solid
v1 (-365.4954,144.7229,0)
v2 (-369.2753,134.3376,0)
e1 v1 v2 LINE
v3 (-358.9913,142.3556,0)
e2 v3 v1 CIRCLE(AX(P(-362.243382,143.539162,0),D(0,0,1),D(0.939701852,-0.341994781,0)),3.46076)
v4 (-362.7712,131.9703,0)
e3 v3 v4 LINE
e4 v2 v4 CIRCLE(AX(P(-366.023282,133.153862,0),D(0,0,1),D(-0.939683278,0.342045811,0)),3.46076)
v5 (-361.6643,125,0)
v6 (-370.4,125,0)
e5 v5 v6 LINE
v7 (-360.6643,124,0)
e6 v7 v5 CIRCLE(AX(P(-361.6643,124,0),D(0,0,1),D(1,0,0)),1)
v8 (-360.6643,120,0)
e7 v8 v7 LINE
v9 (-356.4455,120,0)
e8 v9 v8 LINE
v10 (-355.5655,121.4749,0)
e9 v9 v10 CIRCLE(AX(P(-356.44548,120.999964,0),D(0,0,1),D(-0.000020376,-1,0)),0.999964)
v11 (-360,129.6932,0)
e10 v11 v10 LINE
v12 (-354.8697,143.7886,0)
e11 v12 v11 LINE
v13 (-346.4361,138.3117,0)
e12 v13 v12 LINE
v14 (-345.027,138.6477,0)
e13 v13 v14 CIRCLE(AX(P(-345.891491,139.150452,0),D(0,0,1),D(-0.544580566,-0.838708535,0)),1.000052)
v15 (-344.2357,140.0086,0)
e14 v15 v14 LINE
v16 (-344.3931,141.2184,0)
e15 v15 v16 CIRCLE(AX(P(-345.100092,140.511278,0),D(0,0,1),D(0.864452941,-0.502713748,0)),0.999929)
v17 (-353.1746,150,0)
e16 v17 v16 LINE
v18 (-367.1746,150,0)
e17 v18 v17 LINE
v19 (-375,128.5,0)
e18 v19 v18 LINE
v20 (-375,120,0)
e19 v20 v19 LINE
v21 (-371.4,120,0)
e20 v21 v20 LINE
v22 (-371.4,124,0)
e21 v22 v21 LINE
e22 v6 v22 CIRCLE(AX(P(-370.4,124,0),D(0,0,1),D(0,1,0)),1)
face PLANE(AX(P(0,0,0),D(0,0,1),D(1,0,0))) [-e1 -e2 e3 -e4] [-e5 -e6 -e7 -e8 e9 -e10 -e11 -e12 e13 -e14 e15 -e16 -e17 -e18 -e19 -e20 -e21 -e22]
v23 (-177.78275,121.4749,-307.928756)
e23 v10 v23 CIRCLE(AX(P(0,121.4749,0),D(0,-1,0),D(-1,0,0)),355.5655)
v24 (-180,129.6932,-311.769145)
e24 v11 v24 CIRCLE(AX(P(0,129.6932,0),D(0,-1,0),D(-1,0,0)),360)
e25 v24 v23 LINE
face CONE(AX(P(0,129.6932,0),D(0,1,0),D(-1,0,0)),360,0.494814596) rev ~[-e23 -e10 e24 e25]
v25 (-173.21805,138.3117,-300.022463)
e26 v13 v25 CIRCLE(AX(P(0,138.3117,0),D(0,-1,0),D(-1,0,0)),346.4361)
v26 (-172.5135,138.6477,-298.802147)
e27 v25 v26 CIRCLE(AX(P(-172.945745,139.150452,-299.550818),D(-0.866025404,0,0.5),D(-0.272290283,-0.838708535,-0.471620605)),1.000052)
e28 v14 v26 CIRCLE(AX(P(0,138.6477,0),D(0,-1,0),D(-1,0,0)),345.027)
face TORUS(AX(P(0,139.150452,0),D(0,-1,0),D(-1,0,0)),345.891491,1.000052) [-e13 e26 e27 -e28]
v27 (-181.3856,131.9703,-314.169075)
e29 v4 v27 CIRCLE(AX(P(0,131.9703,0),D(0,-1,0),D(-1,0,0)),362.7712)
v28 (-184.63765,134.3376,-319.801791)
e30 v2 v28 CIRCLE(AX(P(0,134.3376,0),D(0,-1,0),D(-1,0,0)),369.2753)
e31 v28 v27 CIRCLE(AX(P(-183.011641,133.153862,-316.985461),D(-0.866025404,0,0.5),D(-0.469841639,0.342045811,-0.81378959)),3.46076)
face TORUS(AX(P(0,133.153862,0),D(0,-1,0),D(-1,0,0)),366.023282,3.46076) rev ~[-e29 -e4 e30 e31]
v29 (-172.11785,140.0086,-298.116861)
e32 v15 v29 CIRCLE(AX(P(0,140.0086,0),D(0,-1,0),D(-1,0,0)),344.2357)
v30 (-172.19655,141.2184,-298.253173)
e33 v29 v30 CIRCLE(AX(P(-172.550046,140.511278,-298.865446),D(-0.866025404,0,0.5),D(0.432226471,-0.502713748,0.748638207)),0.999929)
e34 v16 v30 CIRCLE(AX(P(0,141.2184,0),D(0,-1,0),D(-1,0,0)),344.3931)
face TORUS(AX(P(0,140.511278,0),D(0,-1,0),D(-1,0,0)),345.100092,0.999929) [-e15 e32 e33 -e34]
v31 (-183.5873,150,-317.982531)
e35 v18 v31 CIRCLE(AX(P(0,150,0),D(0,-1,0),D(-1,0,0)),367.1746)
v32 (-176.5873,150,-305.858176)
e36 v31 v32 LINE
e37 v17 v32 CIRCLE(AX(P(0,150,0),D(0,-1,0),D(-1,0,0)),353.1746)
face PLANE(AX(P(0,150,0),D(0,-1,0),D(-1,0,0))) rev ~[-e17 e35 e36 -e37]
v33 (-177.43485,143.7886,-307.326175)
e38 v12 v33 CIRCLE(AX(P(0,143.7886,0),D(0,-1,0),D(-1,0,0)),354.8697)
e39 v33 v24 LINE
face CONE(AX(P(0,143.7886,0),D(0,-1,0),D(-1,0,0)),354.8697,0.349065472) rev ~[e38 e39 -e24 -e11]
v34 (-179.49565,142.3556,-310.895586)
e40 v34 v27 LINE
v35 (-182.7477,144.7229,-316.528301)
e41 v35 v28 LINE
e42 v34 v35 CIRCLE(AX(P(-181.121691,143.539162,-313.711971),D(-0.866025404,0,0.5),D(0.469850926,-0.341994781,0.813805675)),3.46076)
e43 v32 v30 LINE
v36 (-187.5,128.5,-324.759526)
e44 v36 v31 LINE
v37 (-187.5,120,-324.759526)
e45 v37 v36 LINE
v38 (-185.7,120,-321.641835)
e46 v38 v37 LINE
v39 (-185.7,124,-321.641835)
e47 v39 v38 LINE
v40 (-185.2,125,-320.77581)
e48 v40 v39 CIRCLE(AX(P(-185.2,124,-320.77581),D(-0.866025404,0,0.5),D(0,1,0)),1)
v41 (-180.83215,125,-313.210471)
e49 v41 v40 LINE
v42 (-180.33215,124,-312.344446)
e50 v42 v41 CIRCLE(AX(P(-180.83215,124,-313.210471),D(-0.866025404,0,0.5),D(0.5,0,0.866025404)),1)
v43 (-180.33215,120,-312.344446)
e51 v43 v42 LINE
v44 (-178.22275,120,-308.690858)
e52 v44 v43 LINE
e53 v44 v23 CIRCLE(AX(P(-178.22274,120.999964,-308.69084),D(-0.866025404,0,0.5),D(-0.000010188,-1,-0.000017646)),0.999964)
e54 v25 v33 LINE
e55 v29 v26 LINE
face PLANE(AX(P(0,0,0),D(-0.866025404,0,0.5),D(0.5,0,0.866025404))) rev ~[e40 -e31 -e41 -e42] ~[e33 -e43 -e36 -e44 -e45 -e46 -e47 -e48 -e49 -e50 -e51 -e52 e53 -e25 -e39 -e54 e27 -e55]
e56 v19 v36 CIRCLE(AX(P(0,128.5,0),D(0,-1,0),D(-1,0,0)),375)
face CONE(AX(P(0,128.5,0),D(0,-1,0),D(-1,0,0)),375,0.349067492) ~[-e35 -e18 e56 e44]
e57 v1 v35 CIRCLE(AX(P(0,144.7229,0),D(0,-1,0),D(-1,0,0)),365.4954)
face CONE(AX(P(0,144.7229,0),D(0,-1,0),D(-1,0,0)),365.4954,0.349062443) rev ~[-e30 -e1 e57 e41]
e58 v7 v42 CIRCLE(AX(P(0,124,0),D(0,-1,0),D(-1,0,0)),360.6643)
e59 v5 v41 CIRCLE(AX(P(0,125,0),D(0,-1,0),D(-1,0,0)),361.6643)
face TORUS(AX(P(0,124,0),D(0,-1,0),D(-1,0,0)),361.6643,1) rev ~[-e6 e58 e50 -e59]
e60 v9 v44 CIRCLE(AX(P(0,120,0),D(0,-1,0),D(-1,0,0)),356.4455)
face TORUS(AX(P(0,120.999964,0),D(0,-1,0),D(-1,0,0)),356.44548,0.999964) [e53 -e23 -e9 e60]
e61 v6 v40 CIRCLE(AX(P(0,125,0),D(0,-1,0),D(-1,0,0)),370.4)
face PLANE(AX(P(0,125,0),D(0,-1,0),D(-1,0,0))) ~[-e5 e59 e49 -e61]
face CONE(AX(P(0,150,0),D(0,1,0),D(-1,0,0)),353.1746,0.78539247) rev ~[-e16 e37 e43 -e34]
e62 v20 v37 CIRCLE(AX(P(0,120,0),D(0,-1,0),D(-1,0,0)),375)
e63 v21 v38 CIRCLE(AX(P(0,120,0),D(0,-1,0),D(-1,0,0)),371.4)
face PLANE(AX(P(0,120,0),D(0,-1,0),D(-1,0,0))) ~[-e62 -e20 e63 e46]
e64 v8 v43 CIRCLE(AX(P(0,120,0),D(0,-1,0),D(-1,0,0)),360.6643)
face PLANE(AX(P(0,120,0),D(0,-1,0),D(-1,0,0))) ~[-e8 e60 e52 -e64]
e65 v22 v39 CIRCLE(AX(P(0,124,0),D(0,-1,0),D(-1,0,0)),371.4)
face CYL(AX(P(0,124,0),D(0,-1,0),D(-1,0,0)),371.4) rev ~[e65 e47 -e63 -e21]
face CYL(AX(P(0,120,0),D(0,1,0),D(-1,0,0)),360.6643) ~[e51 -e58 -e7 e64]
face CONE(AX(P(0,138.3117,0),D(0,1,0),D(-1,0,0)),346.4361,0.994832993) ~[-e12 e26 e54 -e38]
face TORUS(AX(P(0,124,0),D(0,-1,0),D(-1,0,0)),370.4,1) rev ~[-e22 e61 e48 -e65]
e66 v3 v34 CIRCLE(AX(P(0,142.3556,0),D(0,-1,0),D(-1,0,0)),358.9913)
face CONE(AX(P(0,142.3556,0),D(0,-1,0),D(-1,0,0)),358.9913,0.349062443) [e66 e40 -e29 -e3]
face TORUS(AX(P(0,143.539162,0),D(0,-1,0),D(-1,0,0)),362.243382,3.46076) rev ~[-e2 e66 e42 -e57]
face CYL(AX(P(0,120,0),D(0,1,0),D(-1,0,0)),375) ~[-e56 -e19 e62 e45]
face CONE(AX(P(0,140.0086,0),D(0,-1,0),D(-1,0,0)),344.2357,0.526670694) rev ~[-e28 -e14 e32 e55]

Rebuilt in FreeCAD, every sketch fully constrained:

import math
import FreeCAD as App
import Part
import Sketcher
from FreeCAD import Vector
Q = App.Units.Quantity

doc = App.newDocument("Part")
params = doc.addObject("Spreadsheet::Sheet", "Params")
for row, (alias, value) in enumerate([
    ("sketch1_radius", "1 mm"),
    ("sketch1_width", "14 mm"),
    ("sketch1_length", "15 mm"),
    ("sketch1_width2", "3.6 mm"),
    ("sketch1_height", "8.5 mm"),
    ("revolution_angle", "60 deg"),
], start=1):
    params.set(f"A{row}", alias)
    params.set(f"B{row}", "=" + value)
    params.setAlias(f"B{row}", alias)

body = doc.addObject("PartDesign::Body", "Body")

# Sketch on XY plane
sketch1 = doc.addObject("Sketcher::SketchObject", "Sketch")
body.addObject(sketch1)
sketch1.AttachmentSupport = (doc.XY_Plane, [""])
sketch1.MapMode = "FlatFace"
sketch1.addGeometry([
    Part.ArcOfCircle(Part.Circle(Vector(-370.4, 124, 0), Vector(0, 0, 1), 1), math.radians(90), math.radians(180)),  # 0
    Part.LineSegment(Vector(-370.4, 125, 0), Vector(-361.7, 125, 0)),  # 1
    Part.ArcOfCircle(Part.Circle(Vector(-361.7, 124, 0), Vector(0, 0, 1), 1), math.radians(0), math.radians(90)),  # 2
    Part.LineSegment(Vector(-360.7, 124, 0), Vector(-360.7, 120, 0)),  # 3
    Part.LineSegment(Vector(-360.7, 120, 0), Vector(-356.4, 120, 0)),  # 4
    Part.ArcOfCircle(Part.Circle(Vector(-356.4, 121, 0), Vector(0, 0, 1), 1), math.radians(-90), math.radians(28)),  # 5
    Part.LineSegment(Vector(-355.6, 121.5, 0), Vector(-360, 129.7, 0)),  # 6
    Part.LineSegment(Vector(-360, 129.7, 0), Vector(-354.9, 143.8, 0)),  # 7
    Part.LineSegment(Vector(-354.9, 143.8, 0), Vector(-346.4, 138.3, 0)),  # 8
    Part.ArcOfCircle(Part.Circle(Vector(-345.9, 139.2, 0), Vector(0, 0, 1), 1), math.radians(-123), math.radians(-30)),  # 9
    Part.LineSegment(Vector(-345, 138.6, 0), Vector(-344.2, 140, 0)),  # 10
    Part.ArcOfCircle(Part.Circle(Vector(-345.1, 140.5, 0), Vector(0, 0, 1), 1), math.radians(-30), math.radians(45)),  # 11
    Part.LineSegment(Vector(-344.4, 141.2, 0), Vector(-353.2, 150, 0)),  # 12
    Part.LineSegment(Vector(-353.2, 150, 0), Vector(-367.2, 150, 0)),  # 13
    Part.LineSegment(Vector(-367.2, 150, 0), Vector(-375, 128.5, 0)),  # 14
    Part.LineSegment(Vector(-375, 128.5, 0), Vector(-375, 120, 0)),  # 15
    Part.LineSegment(Vector(-375, 120, 0), Vector(-371.4, 120, 0)),  # 16
    Part.LineSegment(Vector(-371.4, 120, 0), Vector(-371.4, 124, 0)),  # 17
    Part.ArcOfCircle(Part.Circle(Vector(-362.2, 143.5, 0), Vector(0, 0, 1), 3.5), math.radians(-20), math.radians(160)),  # 18
    Part.LineSegment(Vector(-359, 142.4, 0), Vector(-362.8, 132, 0)),  # 19
    Part.ArcOfCircle(Part.Circle(Vector(-366, 133.2, 0), Vector(0, 0, 1), 3.5), math.radians(160), math.radians(340)),  # 20
    Part.LineSegment(Vector(-369.3, 134.3, 0), Vector(-365.5, 144.7, 0)),  # 21
], False)
sketch1.addConstraint([
    Sketcher.Constraint("Tangent", 0, 1, 1, 1),
    Sketcher.Constraint("Tangent", 1, 2, 2, 2),
    Sketcher.Constraint("Tangent", 2, 1, 3, 1),
    Sketcher.Constraint("Coincident", 3, 2, 4, 1),
    Sketcher.Constraint("Tangent", 4, 2, 5, 1),
    Sketcher.Constraint("Tangent", 5, 2, 6, 1),
    Sketcher.Constraint("Coincident", 6, 2, 7, 1),
    Sketcher.Constraint("Coincident", 7, 2, 8, 1),
    Sketcher.Constraint("Tangent", 8, 2, 9, 1),
    Sketcher.Constraint("Tangent", 9, 2, 10, 1),
    Sketcher.Constraint("Tangent", 10, 2, 11, 1),
    Sketcher.Constraint("Tangent", 11, 2, 12, 1),
    Sketcher.Constraint("Coincident", 12, 2, 13, 1),
    Sketcher.Constraint("Coincident", 13, 2, 14, 1),
    Sketcher.Constraint("Coincident", 14, 2, 15, 1),
    Sketcher.Constraint("Coincident", 15, 2, 16, 1),
    Sketcher.Constraint("Coincident", 16, 2, 17, 1),
    Sketcher.Constraint("Tangent", 17, 2, 0, 2),
    Sketcher.Constraint("Tangent", 18, 1, 19, 1),
    Sketcher.Constraint("Tangent", 19, 2, 20, 2),
    Sketcher.Constraint("Tangent", 20, 1, 21, 1),
    Sketcher.Constraint("Tangent", 21, 2, 18, 2),
    Sketcher.Constraint("Horizontal", 1),
    Sketcher.Constraint("Vertical", 3),
    Sketcher.Constraint("Horizontal", 4),
    Sketcher.Constraint("Horizontal", 13),
    Sketcher.Constraint("Vertical", 15),
    Sketcher.Constraint("Horizontal", 16),
    Sketcher.Constraint("Vertical", 17),
    Sketcher.Constraint("Equal", 0, 2),
    Sketcher.Constraint("Equal", 2, 5),
    Sketcher.Constraint("Equal", 5, 9),
    Sketcher.Constraint("Equal", 9, 11),
    Sketcher.Constraint("Equal", 18, 20),
    Sketcher.Constraint("Parallel", 7, 14),
    Sketcher.Constraint("Parallel", 14, 19),
    Sketcher.Constraint("Horizontal", 4, 2, 15, 2),
    Sketcher.Constraint("Radius", 0, 1.0),
    Sketcher.Constraint("DistanceX", 13, 2, 13, 1, 14.0),
    Sketcher.Constraint("Angle", 12, Q("134.9997 deg")),
    Sketcher.Constraint("Distance", 7, 15.0),
    Sketcher.Constraint("DistanceX", 16, 1, 16, 2, 3.6),
    Sketcher.Constraint("DistanceY", 15, 2, 15, 1, 8.5),
    Sketcher.Constraint("DistanceY", -1, 1, 3, 2, 120.0),
    Sketcher.Constraint("DistanceX", 6, 2, -1, 1, 360.0),
    Sketcher.Constraint("DistanceY", 5, 3, 2, 3, 3.0),
    Sketcher.Constraint("Angle", 7, Q("70 deg")),
    Sketcher.Constraint("Angle", 8, Q("-33.0003 deg")),
    Sketcher.Constraint("DistanceY", -1, 1, 12, 2, 150.0),
    Sketcher.Constraint("DistanceX", 14, 2, -1, 1, 375.0),
    Sketcher.Constraint("Angle", 6, Q("118.3508 deg")),
    Sketcher.Constraint("Radius", 18, 3.4607),
    Sketcher.Constraint("DistanceX", 20, 3, 18, 3, 3.78),
    Sketcher.Constraint("DistanceY", 10, 2, 7, 2, 3.78),
    Sketcher.Constraint("Distance", 8, 10.056),
    Sketcher.Constraint("Distance", 12, 12.419),
    Sketcher.Constraint("DistanceX", 1, 1, 1, 2, 8.7357),
    Sketcher.Constraint("DistanceY", -1, 1, 20, 3, 133.154),
    Sketcher.Constraint("DistanceX", 18, 3, 11, 3, 17.143),
])
sketch1.setExpression("Constraints[37]", "Params.sketch1_radius")
sketch1.setExpression("Constraints[38]", "Params.sketch1_width")
sketch1.setExpression("Constraints[40]", "Params.sketch1_length")
sketch1.setExpression("Constraints[41]", "Params.sketch1_width2")
sketch1.setExpression("Constraints[42]", "Params.sketch1_height")
revolution = doc.addObject("PartDesign::Revolution", "Revolution")
body.addObject(revolution)
revolution.Profile = sketch1
revolution.ReferenceAxis = (sketch1, ["V_Axis"])
revolution.setExpression("Angle", "Params.revolution_angle")
revolution.Reversed = True

doc.recompute()
